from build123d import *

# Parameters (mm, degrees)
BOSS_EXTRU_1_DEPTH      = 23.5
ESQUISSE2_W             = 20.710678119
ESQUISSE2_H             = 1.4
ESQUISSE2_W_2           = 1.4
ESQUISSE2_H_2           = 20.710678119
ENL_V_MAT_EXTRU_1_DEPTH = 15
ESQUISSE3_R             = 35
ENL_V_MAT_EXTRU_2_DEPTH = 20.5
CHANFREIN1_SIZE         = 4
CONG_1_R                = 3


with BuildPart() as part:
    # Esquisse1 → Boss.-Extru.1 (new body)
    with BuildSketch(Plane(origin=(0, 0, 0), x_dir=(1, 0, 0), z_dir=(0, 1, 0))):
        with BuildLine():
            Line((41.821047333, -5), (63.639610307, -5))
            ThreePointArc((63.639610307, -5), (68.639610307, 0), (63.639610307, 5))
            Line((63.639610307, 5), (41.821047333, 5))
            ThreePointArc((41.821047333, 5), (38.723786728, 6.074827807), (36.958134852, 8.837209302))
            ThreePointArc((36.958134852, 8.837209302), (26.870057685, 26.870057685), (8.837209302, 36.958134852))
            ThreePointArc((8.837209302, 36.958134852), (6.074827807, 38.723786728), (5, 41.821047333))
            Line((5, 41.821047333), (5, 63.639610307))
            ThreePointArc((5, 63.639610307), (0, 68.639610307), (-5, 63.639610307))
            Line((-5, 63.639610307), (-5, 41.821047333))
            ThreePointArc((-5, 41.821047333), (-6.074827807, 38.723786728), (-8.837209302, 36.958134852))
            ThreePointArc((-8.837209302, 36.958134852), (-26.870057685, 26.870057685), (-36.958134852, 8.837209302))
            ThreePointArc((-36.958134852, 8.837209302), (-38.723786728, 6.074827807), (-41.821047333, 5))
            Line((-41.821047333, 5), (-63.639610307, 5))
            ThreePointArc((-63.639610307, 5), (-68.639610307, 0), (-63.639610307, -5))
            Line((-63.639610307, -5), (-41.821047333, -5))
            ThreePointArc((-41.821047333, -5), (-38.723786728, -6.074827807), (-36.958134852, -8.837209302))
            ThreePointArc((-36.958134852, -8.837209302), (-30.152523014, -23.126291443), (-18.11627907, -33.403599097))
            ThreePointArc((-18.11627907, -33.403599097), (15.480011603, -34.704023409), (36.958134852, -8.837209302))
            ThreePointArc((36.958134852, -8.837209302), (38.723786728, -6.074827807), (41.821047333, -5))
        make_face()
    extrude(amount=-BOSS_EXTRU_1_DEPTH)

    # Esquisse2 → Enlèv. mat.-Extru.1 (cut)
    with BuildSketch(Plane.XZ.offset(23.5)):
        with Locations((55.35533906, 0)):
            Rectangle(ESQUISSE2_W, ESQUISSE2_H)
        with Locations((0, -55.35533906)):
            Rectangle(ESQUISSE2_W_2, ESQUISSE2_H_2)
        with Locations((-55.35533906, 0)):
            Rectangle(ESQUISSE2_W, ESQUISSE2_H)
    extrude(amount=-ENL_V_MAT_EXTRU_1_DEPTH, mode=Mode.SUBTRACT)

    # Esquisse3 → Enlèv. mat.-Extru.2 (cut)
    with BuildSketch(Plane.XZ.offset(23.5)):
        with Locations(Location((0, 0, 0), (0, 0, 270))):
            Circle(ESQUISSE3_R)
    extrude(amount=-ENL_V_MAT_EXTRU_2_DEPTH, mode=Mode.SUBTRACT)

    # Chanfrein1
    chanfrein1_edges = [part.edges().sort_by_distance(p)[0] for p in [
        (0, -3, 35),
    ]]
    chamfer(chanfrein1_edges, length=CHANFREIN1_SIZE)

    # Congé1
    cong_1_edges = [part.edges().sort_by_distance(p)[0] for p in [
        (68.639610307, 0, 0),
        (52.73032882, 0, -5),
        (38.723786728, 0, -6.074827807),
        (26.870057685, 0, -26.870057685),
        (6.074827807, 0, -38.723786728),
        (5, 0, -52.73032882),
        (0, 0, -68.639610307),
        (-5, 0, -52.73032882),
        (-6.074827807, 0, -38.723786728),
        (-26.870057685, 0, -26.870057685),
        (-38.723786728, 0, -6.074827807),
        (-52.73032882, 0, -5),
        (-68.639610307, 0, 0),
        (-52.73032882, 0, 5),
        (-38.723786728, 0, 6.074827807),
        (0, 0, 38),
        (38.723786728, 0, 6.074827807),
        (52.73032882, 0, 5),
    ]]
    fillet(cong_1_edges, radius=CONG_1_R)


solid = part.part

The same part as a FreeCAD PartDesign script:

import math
import FreeCAD as App
import Part
import Sketcher
Q = App.Units.Quantity


def edges_at(feature, points):
    """Names of the edges that pass closest to the given points."""
    edges = feature.Shape.Edges
    near = lambda p: min(range(len(edges)), key=lambda i: edges[i].distToShape(Part.Vertex(*p))[0])
    return sorted({f"Edge{near(p) + 1}" for p in points})

doc = App.newDocument("Part")
body = doc.addObject("PartDesign::Body", "Body")

# Sketch on XZ plane
sketch1 = body.newObject("Sketcher::SketchObject", "Sketch")
sketch1.AttachmentSupport = (doc.getObject("XZ_Plane"), [""])
sketch1.MapMode = "FlatFace"
sketch1.addGeometry([
    Part.LineSegment(App.Vector(42, 5, 0), App.Vector(64, 5, 0)),  # 0
    Part.ArcOfCircle(Part.Circle(App.Vector(64, 0, 0), App.Vector(0, 0, 1), 5), math.radians(-90), math.radians(90)),  # 1
    Part.LineSegment(App.Vector(64, -5, 0), App.Vector(42, -5, 0)),  # 2
    Part.ArcOfCircle(Part.Circle(App.Vector(42, -10, 0), App.Vector(0, 0, 1), 5), math.radians(90), math.radians(167)),  # 3
    Part.ArcOfCircle(Part.Circle(App.Vector(0, 0, 0), App.Vector(0, 0, 1), 38), math.radians(-77), math.radians(-13)),  # 4
    Part.ArcOfCircle(Part.Circle(App.Vector(10, -42, 0), App.Vector(0, 0, 1), 5), math.radians(103), math.radians(180)),  # 5
    Part.LineSegment(App.Vector(5, -42, 0), App.Vector(5, -64, 0)),  # 6
    Part.ArcOfCircle(Part.Circle(App.Vector(0, -64, 0), App.Vector(0, 0, 1), 5), math.radians(180), math.radians(360)),  # 7
    Part.LineSegment(App.Vector(-5, -64, 0), App.Vector(-5, -42, 0)),  # 8
    Part.ArcOfCircle(Part.Circle(App.Vector(-10, -42, 0), App.Vector(0, 0, 1), 5), math.radians(0), math.radians(77)),  # 9
    Part.ArcOfCircle(Part.Circle(App.Vector(0, 0, 0), App.Vector(0, 0, 1), 38), math.radians(-167), math.radians(-103)),  # 10
    Part.ArcOfCircle(Part.Circle(App.Vector(-42, -10, 0), App.Vector(0, 0, 1), 5), math.radians(13), math.radians(90)),  # 11
    Part.LineSegment(App.Vector(-42, -5, 0), App.Vector(-64, -5, 0)),  # 12
    Part.ArcOfCircle(Part.Circle(App.Vector(-64, 0, 0), App.Vector(0, 0, 1), 5), math.radians(90), math.radians(270)),  # 13
    Part.LineSegment(App.Vector(-64, 5, 0), App.Vector(-42, 5, 0)),  # 14
    Part.ArcOfCircle(Part.Circle(App.Vector(-42, 10, 0), App.Vector(0, 0, 1), 5), math.radians(-90), math.radians(-13)),  # 15
    Part.ArcOfCircle(Part.Circle(App.Vector(0, 0, 0), App.Vector(0, 0, 1), 38), math.radians(118), math.radians(167)),  # 16
    Part.ArcOfCircle(Part.Circle(App.Vector(0, 0, 0), App.Vector(0, 0, 1), 38), math.radians(13), math.radians(118)),  # 17
    Part.ArcOfCircle(Part.Circle(App.Vector(42, 10, 0), App.Vector(0, 0, 1), 5), math.radians(-167), math.radians(-90)),  # 18
], False)
sketch1.addConstraint([
    Sketcher.Constraint("Tangent", 0, 2, 1, 2),
    Sketcher.Constraint("Tangent", 1, 1, 2, 1),
    Sketcher.Constraint("Tangent", 2, 2, 3, 1),
    Sketcher.Constraint("Tangent", 3, 2, 4, 2),
    Sketcher.Constraint("Tangent", 4, 1, 5, 1),
    Sketcher.Constraint("Tangent", 5, 2, 6, 1),
    Sketcher.Constraint("Tangent", 6, 2, 7, 2),
    Sketcher.Constraint("Tangent", 7, 1, 8, 1),
    Sketcher.Constraint("Tangent", 8, 2, 9, 1),
    Sketcher.Constraint("Tangent", 9, 2, 10, 2),
    Sketcher.Constraint("Tangent", 10, 1, 11, 1),
    Sketcher.Constraint("Tangent", 11, 2, 12, 1),
    Sketcher.Constraint("Tangent", 12, 2, 13, 2),
    Sketcher.Constraint("Tangent", 13, 1, 14, 1),
    Sketcher.Constraint("Tangent", 14, 2, 15, 1),
    Sketcher.Constraint("Tangent", 15, 2, 16, 2),
    Sketcher.Constraint("Tangent", 16, 1, 17, 2),
    Sketcher.Constraint("Tangent", 17, 1, 18, 1),
    Sketcher.Constraint("Tangent", 18, 2, 0, 1),
    Sketcher.Constraint("Horizontal", 0),
    Sketcher.Constraint("Horizontal", 2),
    Sketcher.Constraint("Vertical", 6),
    Sketcher.Constraint("Vertical", 8),
    Sketcher.Constraint("Horizontal", 12),
    Sketcher.Constraint("Horizontal", 14),
    Sketcher.Constraint("Coincident", 4, 3, -1, 1),
    Sketcher.Constraint("Coincident", 10, 3, -1, 1),
    Sketcher.Constraint("Coincident", 16, 3, -1, 1),
    Sketcher.Constraint("Equal", 1, 3),
    Sketcher.Constraint("Equal", 3, 5),
    Sketcher.Constraint("Equal", 5, 7),
    Sketcher.Constraint("Equal", 7, 9),
    Sketcher.Constraint("Equal", 4, 10),
    Sketcher.Constraint("Equal", 9, 11),
    Sketcher.Constraint("Equal", 11, 13),
    Sketcher.Constraint("Equal", 13, 15),
    Sketcher.Constraint("Equal", 10, 16),
    Sketcher.Constraint("Equal", 16, 17),
    Sketcher.Constraint("Equal", 15, 18),
    Sketcher.Constraint("Symmetric", 1, 3, 13, 3, -1, 1),
    Sketcher.Constraint("PointOnObject", 1, 3, -1),
    Sketcher.Constraint("PointOnObject", 7, 3, -2),
    Sketcher.Constraint("Equal", 14, 6),
    Sketcher.Constraint("Radius", 1, Q("5 mm")),
    Sketcher.Constraint("Radius", 4, Q("38 mm")),
    Sketcher.Constraint("DistanceY", -1, 1, 16, 1, Q("33.403599 mm")),
    Sketcher.Constraint("DistanceX", 0, 1, 0, 2, Q("21.818563 mm")),
])
pad1 = body.newObject("PartDesign::Pad", "Pad")
pad1.Profile = sketch1
pad1.Length = 23.5

# Sketch on XZ plane
sketch2 = body.newObject("Sketcher::SketchObject", "Sketch001")
sketch2.AttachmentSupport = (doc.getObject("XZ_Plane"), [""])
sketch2.MapMode = "FlatFace"
sketch2.AttachmentOffset = App.Placement(App.Vector(0, 0, 23.5), App.Rotation())
sketch2.addGeometry([
    Part.LineSegment(App.Vector(45, 0.7, 0), App.Vector(45, -0.7, 0)),  # 0
    Part.LineSegment(App.Vector(45, -0.7, 0), App.Vector(65.7, -0.7, 0)),  # 1
    Part.LineSegment(App.Vector(65.7, -0.7, 0), App.Vector(65.7, 0.7, 0)),  # 2
    Part.LineSegment(App.Vector(65.7, 0.7, 0), App.Vector(45, 0.7, 0)),  # 3
    Part.LineSegment(App.Vector(-0.7, -45, 0), App.Vector(-0.7, -65.7, 0)),  # 4
    Part.LineSegment(App.Vector(-0.7, -65.7, 0), App.Vector(0.7, -65.7, 0)),  # 5
    Part.LineSegment(App.Vector(0.7, -65.7, 0), App.Vector(0.7, -45, 0)),  # 6
    Part.LineSegment(App.Vector(0.7, -45, 0), App.Vector(-0.7, -45, 0)),  # 7
    Part.LineSegment(App.Vector(-65.7, 0.7, 0), App.Vector(-65.7, -0.7, 0)),  # 8
    Part.LineSegment(App.Vector(-65.7, -0.7, 0), App.Vector(-45, -0.7, 0)),  # 9
    Part.LineSegment(App.Vector(-45, -0.7, 0), App.Vector(-45, 0.7, 0)),  # 10
    Part.LineSegment(App.Vector(-45, 0.7, 0), App.Vector(-65.7, 0.7, 0)),  # 11
], False)
sketch2.addConstraint([
    Sketcher.Constraint("Coincident", 0, 2, 1, 1),
    Sketcher.Constraint("Coincident", 1, 2, 2, 1),
    Sketcher.Constraint("Coincident", 2, 2, 3, 1),
    Sketcher.Constraint("Coincident", 3, 2, 0, 1),
    Sketcher.Constraint("Coincident", 4, 2, 5, 1),
    Sketcher.Constraint("Coincident", 5, 2, 6, 1),
    Sketcher.Constraint("Coincident", 6, 2, 7, 1),
    Sketcher.Constraint("Coincident", 7, 2, 4, 1),
    Sketcher.Constraint("Coincident", 8, 2, 9, 1),
    Sketcher.Constraint("Coincident", 9, 2, 10, 1),
    Sketcher.Constraint("Coincident", 10, 2, 11, 1),
    Sketcher.Constraint("Coincident", 11, 2, 8, 1),
    Sketcher.Constraint("Vertical", 0),
    Sketcher.Constraint("Horizontal", 1),
    Sketcher.Constraint("Vertical", 2),
    Sketcher.Constraint("Horizontal", 3),
    Sketcher.Constraint("Vertical", 4),
    Sketcher.Constraint("Horizontal", 5),
    Sketcher.Constraint("Vertical", 6),
    Sketcher.Constraint("Horizontal", 7),
    Sketcher.Constraint("Vertical", 8),
    Sketcher.Constraint("Horizontal", 9),
    Sketcher.Constraint("Vertical", 10),
    Sketcher.Constraint("Horizontal", 11),
    Sketcher.Constraint("Symmetric", 2, 2, 8, 2, -1, 1),
    Sketcher.Constraint("Symmetric", 0, 2, 10, 2, -1, 1),
    Sketcher.Constraint("Horizontal", 1, 2, 8, 2),
    Sketcher.Constraint("Equal", 7, 0),
    Sketcher.Constraint("Equal", 11, 4),
    Sketcher.Constraint("DistanceX", 5, 1, 5, 2, Q("1.4 mm")),
    Sketcher.Constraint("DistanceX", -1, 1, 0, 2, Q("45 mm")),
    Sketcher.Constraint("DistanceY", 6, 2, -1, 1, Q("45 mm")),
    Sketcher.Constraint("DistanceX", 4, 2, -1, 1, Q("0.7 mm")),
    Sketcher.Constraint("DistanceX", 1, 1, 1, 2, Q("20.710678 mm")),
])
pocket1 = body.newObject("PartDesign::Pocket", "Pocket")
pocket1.Profile = sketch2
pocket1.Length = 15

# Sketch on XZ plane
sketch3 = body.newObject("Sketcher::SketchObject", "Sketch002")
sketch3.AttachmentSupport = (doc.getObject("XZ_Plane"), [""])
sketch3.MapMode = "FlatFace"
sketch3.AttachmentOffset = App.Placement(App.Vector(0, 0, 23.5), App.Rotation())
sketch3.addGeometry(Part.Circle(App.Vector(0, 0, 0), App.Vector(0, 0, 1), 35), False)
sketch3.addConstraint([
    Sketcher.Constraint("Coincident", 0, 3, -1, 1),
    Sketcher.Constraint("Diameter", 0, Q("70 mm")),
])
pocket2 = body.newObject("PartDesign::Pocket", "Pocket001")
pocket2.Profile = sketch3
pocket2.Length = 20.5
doc.recompute()

chamfer = body.newObject("PartDesign::Chamfer", "Chamfer")
chamfer.Base = (pocket2, edges_at(pocket2, [(0, -3, 35)]))
chamfer.Size = 4
doc.recompute()

fillet = body.newObject("PartDesign::Fillet", "Fillet")
fillet.Base = (chamfer, edges_at(chamfer, [
    (68.64, 0, 0),
    (52.73, 0, -5),
    (38.724, 0, -6.075),
    (26.87, 0, -26.87),
    (6.075, 0, -38.724),
    (5, 0, -52.73),
    (0, 0, -68.64),
    (-5, 0, -52.73),
    (-6.075, 0, -38.724),
    (-26.87, 0, -26.87),
    (-38.724, 0, -6.075),
    (-52.73, 0, -5),
    (-68.64, 0, 0),
    (-52.73, 0, 5),
    (-38.724, 0, 6.075),
    (15.48, 0, 34.704),
    (38.724, 0, 6.075),
    (52.73, 0, 5),
]))
fillet.Radius = 3

doc.recompute()
